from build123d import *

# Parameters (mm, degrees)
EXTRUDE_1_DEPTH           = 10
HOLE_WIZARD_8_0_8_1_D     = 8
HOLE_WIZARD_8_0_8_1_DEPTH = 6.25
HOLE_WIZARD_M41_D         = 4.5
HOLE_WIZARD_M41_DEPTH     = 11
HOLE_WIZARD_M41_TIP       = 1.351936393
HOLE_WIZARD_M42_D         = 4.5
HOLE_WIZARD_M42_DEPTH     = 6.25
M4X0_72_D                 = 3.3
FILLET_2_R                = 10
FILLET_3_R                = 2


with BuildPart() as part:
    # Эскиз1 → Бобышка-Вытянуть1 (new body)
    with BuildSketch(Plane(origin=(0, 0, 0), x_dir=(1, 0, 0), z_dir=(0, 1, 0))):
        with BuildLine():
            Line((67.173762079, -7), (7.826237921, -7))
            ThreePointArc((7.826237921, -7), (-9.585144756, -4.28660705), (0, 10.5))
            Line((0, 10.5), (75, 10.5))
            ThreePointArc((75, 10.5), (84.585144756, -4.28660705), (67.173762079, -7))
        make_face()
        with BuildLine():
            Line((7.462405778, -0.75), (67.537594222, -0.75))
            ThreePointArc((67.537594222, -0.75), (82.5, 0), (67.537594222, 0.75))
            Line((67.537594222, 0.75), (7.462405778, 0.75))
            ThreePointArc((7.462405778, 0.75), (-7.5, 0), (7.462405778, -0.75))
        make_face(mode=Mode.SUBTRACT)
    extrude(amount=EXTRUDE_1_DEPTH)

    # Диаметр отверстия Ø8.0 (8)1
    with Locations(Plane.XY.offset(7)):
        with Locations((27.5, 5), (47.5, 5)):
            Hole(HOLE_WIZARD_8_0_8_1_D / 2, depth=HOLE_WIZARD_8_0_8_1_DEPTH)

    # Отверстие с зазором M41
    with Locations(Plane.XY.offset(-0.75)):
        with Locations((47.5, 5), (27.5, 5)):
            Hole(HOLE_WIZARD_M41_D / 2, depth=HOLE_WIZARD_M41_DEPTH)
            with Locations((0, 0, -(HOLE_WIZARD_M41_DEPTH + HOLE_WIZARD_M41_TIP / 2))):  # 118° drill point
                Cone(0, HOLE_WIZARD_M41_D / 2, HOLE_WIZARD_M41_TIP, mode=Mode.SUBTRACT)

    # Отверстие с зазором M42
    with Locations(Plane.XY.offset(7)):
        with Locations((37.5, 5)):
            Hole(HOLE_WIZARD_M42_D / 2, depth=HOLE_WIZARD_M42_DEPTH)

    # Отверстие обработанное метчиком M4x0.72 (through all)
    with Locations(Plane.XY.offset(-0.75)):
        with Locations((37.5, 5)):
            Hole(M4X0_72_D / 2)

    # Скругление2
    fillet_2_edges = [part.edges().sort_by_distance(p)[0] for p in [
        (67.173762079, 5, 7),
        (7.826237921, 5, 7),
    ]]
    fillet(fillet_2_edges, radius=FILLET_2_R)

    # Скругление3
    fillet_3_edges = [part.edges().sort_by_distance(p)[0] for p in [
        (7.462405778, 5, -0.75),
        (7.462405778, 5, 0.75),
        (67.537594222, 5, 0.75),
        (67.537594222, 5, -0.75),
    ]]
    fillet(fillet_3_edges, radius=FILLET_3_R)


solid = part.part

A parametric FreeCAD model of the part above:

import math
import FreeCAD as App
import Part
import Sketcher
from FreeCAD import Vector


def edges_at(feature, points):
    """Names of the edges that pass closest to the given points."""
    edges = feature.Shape.Edges
    near = lambda p: min(range(len(edges)), key=lambda i: edges[i].distToShape(Part.Vertex(*p))[0])
    return sorted({f"Edge{near(p) + 1}" for p in points})

doc = App.newDocument("Part")
body = doc.addObject("PartDesign::Body", "Body")

# Sketch on XZ plane
sketch1 = body.newObject("Sketcher::SketchObject", "Sketch")
sketch1.AttachmentSupport = (doc.getObject("XZ_Plane"), [""])
sketch1.MapMode = "FlatFace"
sketch1.addGeometry([
    Part.LineSegment(Vector(7.8, 7, 0), Vector(67.2, 7, 0)),  # 0
    Part.ArcOfCircle(Part.Circle(Vector(75, 0, 0), Vector(0, 0, 1), 10.5), math.radians(-90), math.radians(138)),  # 1
    Part.LineSegment(Vector(75, -10.5, 0), Vector(0, -10.5, 0)),  # 2
    Part.ArcOfCircle(Part.Circle(Vector(0, 0, 0), Vector(0, 0, 1), 10.5), math.radians(42), math.radians(270)),  # 3
    Part.ArcOfCircle(Part.Circle(Vector(0, 0, 0), Vector(0, 0, 1), 7.5), math.radians(6), math.radians(354)),  # 4
    Part.LineSegment(Vector(7.5, -0.8, 0), Vector(67.5, -0.8, 0)),  # 5
    Part.ArcOfCircle(Part.Circle(Vector(75, 0, 0), Vector(0, 0, 1), 7.5), math.radians(-174), math.radians(174)),  # 6
    Part.LineSegment(Vector(67.5, 0.8, 0), Vector(7.5, 0.8, 0)),  # 7
], False)
sketch1.addConstraint([
    Sketcher.Constraint("Coincident", 0, 2, 1, 2),
    Sketcher.Constraint("Tangent", 1, 1, 2, 1),
    Sketcher.Constraint("Tangent", 2, 2, 3, 2),
    Sketcher.Constraint("Coincident", 3, 1, 0, 1),
    Sketcher.Constraint("Coincident", 4, 2, 5, 1),
    Sketcher.Constraint("Coincident", 5, 2, 6, 1),
    Sketcher.Constraint("Coincident", 6, 2, 7, 1),
    Sketcher.Constraint("Coincident", 7, 2, 4, 1),
    Sketcher.Constraint("Horizontal", 0),
    Sketcher.Constraint("Horizontal", 2),
    Sketcher.Constraint("Horizontal", 5),
    Sketcher.Constraint("Horizontal", 7),
    Sketcher.Constraint("Coincident", 3, 3, -1, 1),
    Sketcher.Constraint("Coincident", 4, 3, -1, 1),
    Sketcher.Constraint("Coincident", 6, 3, 1, 3),
    Sketcher.Constraint("Equal", 1, 3),
    Sketcher.Constraint("Equal", 4, 6),
    Sketcher.Constraint("Vertical", 5, 2, 6, 2),
    Sketcher.Constraint("Radius", 1, 10.5),
    Sketcher.Constraint("Radius", 4, 7.5),
    Sketcher.Constraint("DistanceX", 2, 2, 2, 1, 75.0),
    Sketcher.Constraint("DistanceY", -1, 1, 0, 2, 7.0),
    Sketcher.Constraint("DistanceY", 5, 2, 6, 2, 1.5),
])
pad1 = body.newObject("PartDesign::Pad", "Pad")
pad1.Profile = sketch1
pad1.Length = 10
pad1.Reversed = True

# Sketch on XY plane
sketch2 = body.newObject("Sketcher::SketchObject", "Sketch001")
sketch2.AttachmentSupport = (doc.getObject("XY_Plane"), [""])
sketch2.MapMode = "FlatFace"
sketch2.AttachmentOffset = App.Placement(Vector(0, 0, 7), App.Rotation())
sketch2.addGeometry([
    Part.Circle(Vector(27.5, 5, 0), Vector(0, 0, 1), 4),
    Part.Circle(Vector(47.5, 5, 0), Vector(0, 0, 1), 4),
], False)
sketch2.addConstraint([
    Sketcher.Constraint("Equal", 0, 1),
    Sketcher.Constraint("Horizontal", 0, 3, 1, 3),
    Sketcher.Constraint("Diameter", 0, 8.0),
    Sketcher.Constraint("DistanceY", -1, 1, 0, 3, 5.0),
    Sketcher.Constraint("DistanceX", 0, 3, 1, 3, 20.0),
    Sketcher.Constraint("DistanceX", -1, 1, 0, 3, 27.5),
])
doc.recompute()
hole = body.newObject("PartDesign::Hole", "Hole")
hole.Profile = sketch2
hole.ThreadType = "None"
hole.Diameter = 8
hole.DepthType = "Dimension"
hole.Depth = 6.25
hole.DrillPoint = "Flat"

# Sketch on XY plane
sketch3 = body.newObject("Sketcher::SketchObject", "Sketch002")
sketch3.AttachmentSupport = (doc.getObject("XY_Plane"), [""])
sketch3.MapMode = "FlatFace"
sketch3.AttachmentOffset = App.Placement(Vector(0, 0, -0.75), App.Rotation())
sketch3.addGeometry([
    Part.Circle(Vector(47.5, 5, 0), Vector(0, 0, 1), 2.2),
    Part.Circle(Vector(27.5, 5, 0), Vector(0, 0, 1), 2.2),
], False)
sketch3.addConstraint([
    Sketcher.Constraint("Equal", 0, 1),
    Sketcher.Constraint("Horizontal", 0, 3, 1, 3),
    Sketcher.Constraint("Diameter", 0, 4.5),
    Sketcher.Constraint("DistanceY", -1, 1, 0, 3, 5.0),
    Sketcher.Constraint("DistanceX", 1, 3, 0, 3, 20.0),
    Sketcher.Constraint("DistanceX", -1, 1, 0, 3, 47.5),
])
doc.recompute()
hole2 = body.newObject("PartDesign::Hole", "Hole001")
hole2.Profile = sketch3
hole2.ThreadType = "None"
hole2.Diameter = 4.5
hole2.DepthType = "Dimension"
hole2.Depth = 11
hole2.DrillPoint = "Angled"
hole2.DrillPointAngle = 118

# Sketch on XY plane
sketch4 = body.newObject("Sketcher::SketchObject", "Sketch003")
sketch4.AttachmentSupport = (doc.getObject("XY_Plane"), [""])
sketch4.MapMode = "FlatFace"
sketch4.AttachmentOffset = App.Placement(Vector(0, 0, 7), App.Rotation())
sketch4.addGeometry(Part.Circle(Vector(37.5, 5, 0), Vector(0, 0, 1), 2.2), False)
sketch4.addConstraint([
    Sketcher.Constraint("Diameter", 0, 4.5),
    Sketcher.Constraint("DistanceY", -1, 1, 0, 3, 5.0),
    Sketcher.Constraint("DistanceX", -1, 1, 0, 3, 37.5),
])
doc.recompute()
hole3 = body.newObject("PartDesign::Hole", "Hole002")
hole3.Profile = sketch4
hole3.ThreadType = "None"
hole3.Diameter = 4.5
hole3.DepthType = "Dimension"
hole3.Depth = 6.25
hole3.DrillPoint = "Flat"

# Sketch on XY plane
sketch5 = body.newObject("Sketcher::SketchObject", "Sketch004")
sketch5.AttachmentSupport = (doc.getObject("XY_Plane"), [""])
sketch5.MapMode = "FlatFace"
sketch5.AttachmentOffset = App.Placement(Vector(0, 0, -0.75), App.Rotation())
sketch5.addGeometry(Part.Circle(Vector(37.5, 5, 0), Vector(0, 0, 1), 1.6), False)
sketch5.addConstraint([
    Sketcher.Constraint("Diameter", 0, 3.3),
    Sketcher.Constraint("DistanceY", -1, 1, 0, 3, 5.0),
    Sketcher.Constraint("DistanceX", -1, 1, 0, 3, 37.5),
])
doc.recompute()
hole4 = body.newObject("PartDesign::Hole", "Hole003")
hole4.Profile = sketch5
hole4.ThreadType = "None"
hole4.Diameter = 3.3
hole4.DepthType = "ThroughAll"
doc.recompute()

fillet = body.newObject("PartDesign::Fillet", "Fillet")
fillet.Base = (hole4, edges_at(hole4, [(67.174, 5, 7), (7.826, 5, 7)]))
fillet.Radius = 10
doc.recompute()

fillet2 = body.newObject("PartDesign::Fillet", "Fillet001")
fillet2.Base = (fillet, edges_at(fillet, [
    (7.462, 5, -0.75),
    (7.462, 5, 0.75),
    (67.538, 5, 0.75),
    (67.538, 5, -0.75),
]))
fillet2.Radius = 2

doc.recompute()
